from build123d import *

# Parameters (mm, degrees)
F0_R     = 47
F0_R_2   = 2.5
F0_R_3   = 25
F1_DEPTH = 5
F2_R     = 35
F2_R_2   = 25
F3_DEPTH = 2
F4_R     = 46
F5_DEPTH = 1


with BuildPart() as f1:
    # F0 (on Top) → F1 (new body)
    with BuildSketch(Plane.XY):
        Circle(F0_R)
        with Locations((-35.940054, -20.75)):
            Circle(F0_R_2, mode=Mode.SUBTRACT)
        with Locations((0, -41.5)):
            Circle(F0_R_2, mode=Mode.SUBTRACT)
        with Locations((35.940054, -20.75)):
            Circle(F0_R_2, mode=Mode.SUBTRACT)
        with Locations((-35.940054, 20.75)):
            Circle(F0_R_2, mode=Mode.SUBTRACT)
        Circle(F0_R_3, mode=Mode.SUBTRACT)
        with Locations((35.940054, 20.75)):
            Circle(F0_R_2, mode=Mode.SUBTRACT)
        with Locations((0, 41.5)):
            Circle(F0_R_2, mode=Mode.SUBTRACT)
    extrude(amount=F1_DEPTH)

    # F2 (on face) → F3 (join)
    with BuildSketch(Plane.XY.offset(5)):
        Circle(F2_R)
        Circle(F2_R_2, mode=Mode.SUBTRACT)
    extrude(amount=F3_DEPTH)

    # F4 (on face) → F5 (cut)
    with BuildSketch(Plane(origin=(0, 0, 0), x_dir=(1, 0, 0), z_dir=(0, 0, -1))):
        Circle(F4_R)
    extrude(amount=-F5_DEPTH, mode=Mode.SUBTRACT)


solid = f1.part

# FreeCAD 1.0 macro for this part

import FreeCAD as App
import Part
import Sketcher
from FreeCAD import Vector

doc = App.newDocument("Part")
body = doc.addObject("PartDesign::Body", "Body")

sketch1 = body.newObject("Sketcher::SketchObject", "Sketch")
sketch1.AttachmentSupport = (doc.getObject("XY_Plane"), [""])
sketch1.MapMode = "FlatFace"
sketch1.addGeometry([
    Part.Circle(Vector(0, 0, 0), Vector(0, 0, 1), 47),
    Part.Circle(Vector(0, -41.5, 0), Vector(0, 0, 1), 2.5),
    Part.Circle(Vector(-35.940054, -20.75, 0), Vector(0, 0, 1), 2.5),
    Part.Circle(Vector(35.940054, -20.75, 0), Vector(0, 0, 1), 2.5),
    Part.Circle(Vector(-35.940054, 20.75, 0), Vector(0, 0, 1), 2.5),
    Part.Circle(Vector(0, 0, 0), Vector(0, 0, 1), 25),
    Part.Circle(Vector(0, 41.5, 0), Vector(0, 0, 1), 2.5),
    Part.Circle(Vector(35.940054, 20.75, 0), Vector(0, 0, 1), 2.5),
], False)
sketch1.addConstraint([
    Sketcher.Constraint("Coincident", 0, 3, -1, 1),
    Sketcher.Constraint("Coincident", 5, 3, -1, 1),
    Sketcher.Constraint("Equal", 1, 2),
    Sketcher.Constraint("Equal", 2, 3),
    Sketcher.Constraint("Equal", 3, 4),
    Sketcher.Constraint("Equal", 4, 6),
    Sketcher.Constraint("Equal", 6, 7),
    Sketcher.Constraint("Symmetric", 3, 3, 4, 3, -1, 1),
    Sketcher.Constraint("Symmetric", 1, 3, 6, 3, -1, 1),
    Sketcher.Constraint("Symmetric", 2, 3, 7, 3, -1, 1),
    Sketcher.Constraint("Symmetric", 2, 3, 3, 3, -2),
    Sketcher.Constraint("PointOnObject", 1, 3, -2),
    Sketcher.Constraint("Diameter", 0, 94.0),
    Sketcher.Constraint("Diameter", 1, 5.0),
    Sketcher.Constraint("Diameter", 5, 50.0),
    Sketcher.Constraint("DistanceY", 1, 3, -1, 1, 41.5),
    Sketcher.Constraint("DistanceY", 2, 3, 4, 3, 41.5),
    Sketcher.Constraint("DistanceX", 2, 3, 3, 3, 71.880108),
])
pad1 = body.newObject("PartDesign::Pad", "Pad")
pad1.Profile = sketch1
pad1.Length = 5

sketch2 = body.newObject("Sketcher::SketchObject", "Sketch001")
sketch2.AttachmentSupport = (doc.getObject("XY_Plane"), [""])
sketch2.MapMode = "FlatFace"
sketch2.AttachmentOffset = App.Placement(Vector(0, 0, 5), App.Rotation())
sketch2.addGeometry([
    Part.Circle(Vector(0, 0, 0), Vector(0, 0, 1), 35),
    Part.Circle(Vector(0, 0, 0), Vector(0, 0, 1), 25),
], False)
sketch2.addConstraint([
    Sketcher.Constraint("Coincident", 0, 3, -1, 1),
    Sketcher.Constraint("Coincident", 1, 3, -1, 1),
    Sketcher.Constraint("Diameter", 0, 70.0),
    Sketcher.Constraint("Diameter", 1, 50.0),
])
pad2 = body.newObject("PartDesign::Pad", "Pad001")
pad2.Profile = sketch2
pad2.Length = 2

sketch3 = body.newObject("Sketcher::SketchObject", "Sketch002")
sketch3.AttachmentSupport = (doc.getObject("XY_Plane"), [""])
sketch3.MapMode = "FlatFace"
sketch3.addGeometry(Part.Circle(Vector(0, 0, 0), Vector(0, 0, 1), 46), False)
sketch3.addConstraint([
    Sketcher.Constraint("Coincident", 0, 3, -1, 1),
    Sketcher.Constraint("Diameter", 0, 92.0),
])
pocket1 = body.newObject("PartDesign::Pocket", "Pocket")
pocket1.Profile = sketch3
pocket1.Length = 1
pocket1.Reversed = True

doc.recompute()
